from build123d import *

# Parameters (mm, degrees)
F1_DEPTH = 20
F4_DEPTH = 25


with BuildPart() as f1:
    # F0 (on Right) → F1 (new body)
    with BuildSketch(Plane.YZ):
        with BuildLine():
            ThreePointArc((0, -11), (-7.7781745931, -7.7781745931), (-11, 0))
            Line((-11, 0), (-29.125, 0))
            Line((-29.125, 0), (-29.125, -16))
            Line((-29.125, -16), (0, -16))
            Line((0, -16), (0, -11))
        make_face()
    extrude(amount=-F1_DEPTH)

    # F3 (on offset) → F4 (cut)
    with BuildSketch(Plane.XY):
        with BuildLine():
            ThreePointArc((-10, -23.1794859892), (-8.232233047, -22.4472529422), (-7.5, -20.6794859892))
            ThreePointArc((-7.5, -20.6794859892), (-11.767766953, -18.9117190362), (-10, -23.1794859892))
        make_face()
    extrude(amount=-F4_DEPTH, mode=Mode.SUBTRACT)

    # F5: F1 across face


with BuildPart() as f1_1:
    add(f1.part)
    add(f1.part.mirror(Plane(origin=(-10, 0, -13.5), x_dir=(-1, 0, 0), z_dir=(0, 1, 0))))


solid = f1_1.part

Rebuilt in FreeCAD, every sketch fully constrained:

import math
import FreeCAD as App
import Part
import Sketcher

V = App.Vector
Q = App.Units.Quantity

doc = App.newDocument("Part")
body = doc.addObject("PartDesign::Body", "Body")

# Sketch on YZ plane
sketch1 = body.newObject("Sketcher::SketchObject", "Sketch")
sketch1.AttachmentSupport = (doc.getObject("YZ_Plane"), [""])
sketch1.MapMode = "FlatFace"
sketch1.addGeometry([
    Part.ArcOfCircle(Part.Circle(V(0, 0, 0), V(0, 0, 1), 11), math.radians(180), math.radians(270)),  # 0
    Part.LineSegment(V(-11, 0, 0), V(-29.125, 0, 0)),  # 1
    Part.LineSegment(V(-29.125, 0, 0), V(-29.125, -16, 0)),  # 2
    Part.LineSegment(V(-29.125, -16, 0), V(0, -16, 0)),  # 3
    Part.LineSegment(V(0, -16, 0), V(0, -11, 0)),  # 4
], False)
sketch1.addConstraint([
    Sketcher.Constraint("Coincident", 0, 1, 1, 1),
    Sketcher.Constraint("Coincident", 1, 2, 2, 1),
    Sketcher.Constraint("Coincident", 2, 2, 3, 1),
    Sketcher.Constraint("Coincident", 3, 2, 4, 1),
    Sketcher.Constraint("Coincident", 4, 2, 0, 2),
    Sketcher.Constraint("Horizontal", 1),
    Sketcher.Constraint("Vertical", 2),
    Sketcher.Constraint("Horizontal", 3),
    Sketcher.Constraint("Vertical", 4),
    Sketcher.Constraint("Coincident", 0, 3, -1, 1),
    Sketcher.Constraint("PointOnObject", 0, 1, -1),
    Sketcher.Constraint("PointOnObject", 3, 2, -2),
    Sketcher.Constraint("Radius", 0, Q("11 mm")),
    Sketcher.Constraint("DistanceY", 2, 2, 2, 1, Q("16 mm")),
    Sketcher.Constraint("DistanceX", 1, 2, 1, 1, Q("18.125 mm")),
])
pad1 = body.newObject("PartDesign::Pad", "Pad")
pad1.Profile = sketch1
pad1.Length = 20
pad1.Reversed = True

# Sketch on XY plane
sketch2 = body.newObject("Sketcher::SketchObject", "Sketch001")
sketch2.AttachmentSupport = (doc.getObject("XY_Plane"), [""])
sketch2.MapMode = "FlatFace"
sketch2.addGeometry([
    Part.ArcOfCircle(Part.Circle(V(-10, -20.679486, 0), V(0, 0, 1), 2.5), math.radians(-90), math.radians(0)),
    Part.ArcOfCircle(Part.Circle(V(-10, -20.679486, 0), V(0, 0, 1), 2.5), math.radians(0), math.radians(270)),
], False)
sketch2.addConstraint([
    Sketcher.Constraint("Tangent", 0, 1, 1, 2),
    Sketcher.Constraint("Coincident", 1, 1, 0, 2),
    Sketcher.Constraint("Horizontal", 0, 3, 1, 1),
    Sketcher.Constraint("Vertical", 1, 3, 0, 1),
    Sketcher.Constraint("Radius", 0, Q("2.5 mm")),
    Sketcher.Constraint("DistanceX", 0, 3, -1, 1, Q("10 mm")),
    Sketcher.Constraint("DistanceY", 0, 3, -1, 1, Q("20.679486 mm")),
])
pocket1 = body.newObject("PartDesign::Pocket", "Pocket")
pocket1.Profile = sketch2
pocket1.Length = 25
body2 = doc.addObject("PartDesign::Body", "Body001")
doc.recompute()

body2.BaseFeature = body
doc.recompute()

mirroring = doc.addObject("Part::Mirroring", "Mirroring")
mirroring.Source = body
mirroring.Base = V(-10, 0, -13.5)
mirroring.Normal = V(0, 1, 0)
body3 = doc.addObject("PartDesign::Body", "Body002")
body3.BaseFeature = mirroring
boolean = body2.newObject("PartDesign::Boolean", "Boolean")
boolean.Type = "Fuse"
boolean.addObjects([body3])
doc.recompute()
mirroring.Visibility = False

doc.recompute()
